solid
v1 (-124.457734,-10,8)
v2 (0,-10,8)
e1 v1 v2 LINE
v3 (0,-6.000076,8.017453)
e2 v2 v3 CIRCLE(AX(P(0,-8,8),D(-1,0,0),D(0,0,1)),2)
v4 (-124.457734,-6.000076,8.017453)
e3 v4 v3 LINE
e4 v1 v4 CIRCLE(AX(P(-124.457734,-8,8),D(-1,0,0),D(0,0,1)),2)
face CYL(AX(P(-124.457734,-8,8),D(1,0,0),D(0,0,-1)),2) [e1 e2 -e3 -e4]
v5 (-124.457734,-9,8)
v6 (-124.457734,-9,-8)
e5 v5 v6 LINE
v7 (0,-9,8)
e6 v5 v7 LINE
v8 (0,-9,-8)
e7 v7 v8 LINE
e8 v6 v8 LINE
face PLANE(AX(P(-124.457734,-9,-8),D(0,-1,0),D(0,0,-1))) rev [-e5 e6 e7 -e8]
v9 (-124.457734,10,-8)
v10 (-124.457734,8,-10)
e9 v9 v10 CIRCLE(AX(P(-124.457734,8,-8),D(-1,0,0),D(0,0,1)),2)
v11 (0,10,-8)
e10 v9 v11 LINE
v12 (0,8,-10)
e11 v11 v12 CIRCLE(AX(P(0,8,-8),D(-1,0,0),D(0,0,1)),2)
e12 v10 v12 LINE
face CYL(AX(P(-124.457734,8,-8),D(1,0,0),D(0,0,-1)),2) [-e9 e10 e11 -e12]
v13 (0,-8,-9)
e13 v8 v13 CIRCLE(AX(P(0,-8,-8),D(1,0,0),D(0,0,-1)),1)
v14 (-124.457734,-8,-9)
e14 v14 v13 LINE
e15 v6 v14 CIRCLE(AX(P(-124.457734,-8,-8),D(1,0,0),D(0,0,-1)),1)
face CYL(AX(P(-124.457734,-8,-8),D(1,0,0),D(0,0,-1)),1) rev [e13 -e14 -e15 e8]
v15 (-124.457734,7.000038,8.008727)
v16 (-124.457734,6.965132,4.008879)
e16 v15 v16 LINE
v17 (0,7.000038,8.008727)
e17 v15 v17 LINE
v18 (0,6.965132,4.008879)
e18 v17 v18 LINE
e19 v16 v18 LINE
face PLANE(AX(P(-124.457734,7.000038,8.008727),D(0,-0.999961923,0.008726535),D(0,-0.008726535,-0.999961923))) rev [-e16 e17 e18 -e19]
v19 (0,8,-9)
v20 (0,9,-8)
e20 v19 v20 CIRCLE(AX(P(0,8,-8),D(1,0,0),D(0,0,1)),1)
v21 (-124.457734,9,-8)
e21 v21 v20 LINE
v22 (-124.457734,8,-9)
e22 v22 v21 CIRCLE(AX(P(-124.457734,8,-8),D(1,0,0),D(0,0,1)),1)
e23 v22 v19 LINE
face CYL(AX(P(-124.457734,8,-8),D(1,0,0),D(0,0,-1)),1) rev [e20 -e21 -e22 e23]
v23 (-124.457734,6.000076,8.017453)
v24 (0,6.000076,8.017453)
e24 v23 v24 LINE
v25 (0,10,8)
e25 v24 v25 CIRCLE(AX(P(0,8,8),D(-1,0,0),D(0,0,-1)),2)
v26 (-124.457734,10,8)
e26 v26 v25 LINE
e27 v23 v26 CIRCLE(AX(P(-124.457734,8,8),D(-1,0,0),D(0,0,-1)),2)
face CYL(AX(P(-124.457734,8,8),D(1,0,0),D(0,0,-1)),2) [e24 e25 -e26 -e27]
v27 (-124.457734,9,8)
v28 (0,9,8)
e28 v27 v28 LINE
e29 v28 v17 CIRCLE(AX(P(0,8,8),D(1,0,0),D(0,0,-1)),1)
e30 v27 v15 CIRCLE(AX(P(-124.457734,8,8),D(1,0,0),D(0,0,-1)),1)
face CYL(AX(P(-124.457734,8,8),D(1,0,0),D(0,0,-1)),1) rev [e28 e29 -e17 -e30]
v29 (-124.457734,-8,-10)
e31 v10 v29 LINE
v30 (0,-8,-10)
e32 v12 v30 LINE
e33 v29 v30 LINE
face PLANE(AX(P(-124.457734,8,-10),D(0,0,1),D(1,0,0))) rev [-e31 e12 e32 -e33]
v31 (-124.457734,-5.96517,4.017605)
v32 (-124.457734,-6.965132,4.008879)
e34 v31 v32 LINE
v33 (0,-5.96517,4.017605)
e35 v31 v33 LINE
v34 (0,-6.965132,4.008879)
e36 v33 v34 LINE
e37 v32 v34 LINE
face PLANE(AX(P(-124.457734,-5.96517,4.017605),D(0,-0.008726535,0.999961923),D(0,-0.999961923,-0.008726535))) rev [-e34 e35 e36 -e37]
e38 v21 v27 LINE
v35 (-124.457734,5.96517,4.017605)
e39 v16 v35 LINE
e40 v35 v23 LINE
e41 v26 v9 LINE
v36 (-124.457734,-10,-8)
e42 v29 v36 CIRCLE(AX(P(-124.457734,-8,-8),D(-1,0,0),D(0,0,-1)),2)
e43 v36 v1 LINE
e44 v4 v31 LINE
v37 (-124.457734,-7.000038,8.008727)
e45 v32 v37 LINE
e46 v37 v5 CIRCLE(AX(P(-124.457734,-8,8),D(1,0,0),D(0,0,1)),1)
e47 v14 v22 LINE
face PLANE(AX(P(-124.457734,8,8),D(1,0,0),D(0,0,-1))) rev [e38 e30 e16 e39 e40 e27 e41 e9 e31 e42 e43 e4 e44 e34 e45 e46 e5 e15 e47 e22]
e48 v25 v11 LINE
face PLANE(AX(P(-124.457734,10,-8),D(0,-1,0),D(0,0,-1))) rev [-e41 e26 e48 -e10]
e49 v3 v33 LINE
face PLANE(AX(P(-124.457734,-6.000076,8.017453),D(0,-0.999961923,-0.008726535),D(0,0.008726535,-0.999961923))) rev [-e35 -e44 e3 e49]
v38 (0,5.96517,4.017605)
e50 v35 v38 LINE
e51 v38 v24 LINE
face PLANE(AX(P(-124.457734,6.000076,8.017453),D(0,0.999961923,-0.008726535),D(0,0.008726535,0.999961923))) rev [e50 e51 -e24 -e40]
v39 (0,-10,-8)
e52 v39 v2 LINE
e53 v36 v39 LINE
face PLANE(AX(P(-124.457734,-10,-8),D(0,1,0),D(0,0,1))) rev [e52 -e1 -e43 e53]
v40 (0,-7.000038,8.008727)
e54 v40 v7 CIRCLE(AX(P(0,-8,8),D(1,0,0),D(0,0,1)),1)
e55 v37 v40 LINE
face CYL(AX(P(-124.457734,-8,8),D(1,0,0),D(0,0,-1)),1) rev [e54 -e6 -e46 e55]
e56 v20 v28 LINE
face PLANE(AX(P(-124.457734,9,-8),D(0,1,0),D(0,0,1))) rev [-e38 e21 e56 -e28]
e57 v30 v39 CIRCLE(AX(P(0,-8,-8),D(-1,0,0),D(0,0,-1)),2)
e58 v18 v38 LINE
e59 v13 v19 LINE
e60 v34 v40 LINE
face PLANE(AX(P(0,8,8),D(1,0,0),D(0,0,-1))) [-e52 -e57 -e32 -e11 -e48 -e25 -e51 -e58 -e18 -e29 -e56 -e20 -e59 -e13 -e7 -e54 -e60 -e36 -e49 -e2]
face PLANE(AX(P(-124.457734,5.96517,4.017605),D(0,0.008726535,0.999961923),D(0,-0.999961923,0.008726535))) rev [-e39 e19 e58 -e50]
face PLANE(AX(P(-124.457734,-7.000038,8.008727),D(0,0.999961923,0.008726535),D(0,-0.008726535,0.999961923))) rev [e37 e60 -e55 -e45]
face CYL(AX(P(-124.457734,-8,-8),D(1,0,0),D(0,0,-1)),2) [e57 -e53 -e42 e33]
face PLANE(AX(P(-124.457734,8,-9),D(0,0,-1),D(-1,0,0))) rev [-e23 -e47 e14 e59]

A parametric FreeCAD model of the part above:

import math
import FreeCAD as App
import Part
import Sketcher
Q = App.Units.Quantity

doc = App.newDocument("Part")
body = doc.addObject("PartDesign::Body", "Body")

sketch1 = doc.addObject("Sketcher::SketchObject", "Sketch")
body.addObject(sketch1)
sketch1.AttachmentSupport = (doc.YZ_Plane, [""])
sketch1.MapMode = "FlatFace"
sketch1.addGeometry([
    Part.LineSegment(App.Vector(-8, -9, 0), App.Vector(8, -9, 0)),
    Part.ArcOfCircle(Part.Circle(App.Vector(8, -8, 0), App.Vector(0, 0, 1), 1), math.radians(-90), math.radians(0)),
    Part.LineSegment(App.Vector(9, -8, 0), App.Vector(9, 8, 0)),
    Part.ArcOfCircle(Part.Circle(App.Vector(8, 8, 0), App.Vector(0, 0, 1), 1), math.radians(0), math.radians(180)),
    Part.LineSegment(App.Vector(7, 8, 0), App.Vector(7, 4, 0)),
    Part.LineSegment(App.Vector(7, 4, 0), App.Vector(6, 4, 0)),
    Part.LineSegment(App.Vector(6, 4, 0), App.Vector(6, 8, 0)),
    Part.ArcOfCircle(Part.Circle(App.Vector(8, 8, 0), App.Vector(0, 0, 1), 2), math.radians(0), math.radians(179)),
    Part.LineSegment(App.Vector(10, 8, 0), App.Vector(10, -8, 0)),
    Part.ArcOfCircle(Part.Circle(App.Vector(8, -8, 0), App.Vector(0, 0, 1), 2), math.radians(-90), math.radians(0)),
    Part.LineSegment(App.Vector(8, -10, 0), App.Vector(-8, -10, 0)),
    Part.ArcOfCircle(Part.Circle(App.Vector(-8, -8, 0), App.Vector(0, 0, 1), 2), math.radians(-180), math.radians(-90)),
    Part.LineSegment(App.Vector(-10, -8, 0), App.Vector(-10, 8, 0)),
    Part.ArcOfCircle(Part.Circle(App.Vector(-8, 8, 0), App.Vector(0, 0, 1), 2), math.radians(1), math.radians(180)),
    Part.LineSegment(App.Vector(-6, 8, 0), App.Vector(-6, 4, 0)),
    Part.LineSegment(App.Vector(-6, 4, 0), App.Vector(-7, 4, 0)),
    Part.LineSegment(App.Vector(-7, 4, 0), App.Vector(-7, 8, 0)),
    Part.ArcOfCircle(Part.Circle(App.Vector(-8, 8, 0), App.Vector(0, 0, 1), 1), math.radians(0), math.radians(180)),
    Part.LineSegment(App.Vector(-9, 8, 0), App.Vector(-9, -8, 0)),
    Part.ArcOfCircle(Part.Circle(App.Vector(-8, -8, 0), App.Vector(0, 0, 1), 1), math.radians(-180), math.radians(-90)),
], False)
sketch1.addConstraint([
    Sketcher.Constraint("Tangent", 0, 2, 1, 1),
    Sketcher.Constraint("Tangent", 1, 2, 2, 1),
    Sketcher.Constraint("Tangent", 2, 2, 3, 1),
    Sketcher.Constraint("Tangent", 3, 2, 4, 1),
    Sketcher.Constraint("Coincident", 4, 2, 5, 1),
    Sketcher.Constraint("Coincident", 5, 2, 6, 1),
    Sketcher.Constraint("Tangent", 6, 2, 7, 2),
    Sketcher.Constraint("Tangent", 7, 1, 8, 1),
    Sketcher.Constraint("Tangent", 8, 2, 9, 2),
    Sketcher.Constraint("Tangent", 9, 1, 10, 1),
    Sketcher.Constraint("Tangent", 10, 2, 11, 2),
    Sketcher.Constraint("Tangent", 11, 1, 12, 1),
    Sketcher.Constraint("Tangent", 12, 2, 13, 2),
    Sketcher.Constraint("Tangent", 13, 1, 14, 1),
    Sketcher.Constraint("Coincident", 14, 2, 15, 1),
    Sketcher.Constraint("Coincident", 15, 2, 16, 1),
    Sketcher.Constraint("Tangent", 16, 2, 17, 1),
    Sketcher.Constraint("Tangent", 17, 2, 18, 1),
    Sketcher.Constraint("Tangent", 18, 2, 19, 1),
    Sketcher.Constraint("Tangent", 19, 2, 0, 1),
    Sketcher.Constraint("Horizontal", 0),
    Sketcher.Constraint("Vertical", 2),
    Sketcher.Constraint("Vertical", 8),
    Sketcher.Constraint("Horizontal", 10),
    Sketcher.Constraint("Vertical", 12),
    Sketcher.Constraint("Vertical", 18),
    Sketcher.Constraint("Coincident", 7, 3, 3, 3),
    Sketcher.Constraint("Coincident", 9, 3, 1, 3),
    Sketcher.Constraint("Coincident", 17, 3, 13, 3),
    Sketcher.Constraint("Coincident", 19, 3, 11, 3),
    Sketcher.Constraint("Equal", 1, 3),
    Sketcher.Constraint("Equal", 9, 11),
    Sketcher.Constraint("Equal", 11, 13),
    Sketcher.Constraint("Symmetric", 3, 3, 11, 3, -1, 1),
    Sketcher.Constraint("Symmetric", 6, 2, 13, 1, -2),
    Sketcher.Constraint("Symmetric", 4, 2, 15, 2, -2),
    Sketcher.Constraint("Perpendicular", 4, 5),
    Sketcher.Constraint("Perpendicular", 5, 6),
    Sketcher.Constraint("Perpendicular", 14, 15),
    Sketcher.Constraint("Equal", 10, 2),
    Sketcher.Constraint("Radius", 1, Q("1 mm")),
    Sketcher.Constraint("Radius", 7, Q("2 mm")),
    Sketcher.Constraint("DistanceX", 0, 1, 0, 2, Q("16 mm")),
    Sketcher.Constraint("Distance", 4, Q("4 mm")),
    Sketcher.Constraint("Angle", 4, Q("-90.5 deg")),
])
pad1 = doc.addObject("PartDesign::Pad", "Pad")
body.addObject(pad1)
pad1.Profile = sketch1
pad1.Length = 124.457734
pad1.Reversed = True

doc.recompute()
